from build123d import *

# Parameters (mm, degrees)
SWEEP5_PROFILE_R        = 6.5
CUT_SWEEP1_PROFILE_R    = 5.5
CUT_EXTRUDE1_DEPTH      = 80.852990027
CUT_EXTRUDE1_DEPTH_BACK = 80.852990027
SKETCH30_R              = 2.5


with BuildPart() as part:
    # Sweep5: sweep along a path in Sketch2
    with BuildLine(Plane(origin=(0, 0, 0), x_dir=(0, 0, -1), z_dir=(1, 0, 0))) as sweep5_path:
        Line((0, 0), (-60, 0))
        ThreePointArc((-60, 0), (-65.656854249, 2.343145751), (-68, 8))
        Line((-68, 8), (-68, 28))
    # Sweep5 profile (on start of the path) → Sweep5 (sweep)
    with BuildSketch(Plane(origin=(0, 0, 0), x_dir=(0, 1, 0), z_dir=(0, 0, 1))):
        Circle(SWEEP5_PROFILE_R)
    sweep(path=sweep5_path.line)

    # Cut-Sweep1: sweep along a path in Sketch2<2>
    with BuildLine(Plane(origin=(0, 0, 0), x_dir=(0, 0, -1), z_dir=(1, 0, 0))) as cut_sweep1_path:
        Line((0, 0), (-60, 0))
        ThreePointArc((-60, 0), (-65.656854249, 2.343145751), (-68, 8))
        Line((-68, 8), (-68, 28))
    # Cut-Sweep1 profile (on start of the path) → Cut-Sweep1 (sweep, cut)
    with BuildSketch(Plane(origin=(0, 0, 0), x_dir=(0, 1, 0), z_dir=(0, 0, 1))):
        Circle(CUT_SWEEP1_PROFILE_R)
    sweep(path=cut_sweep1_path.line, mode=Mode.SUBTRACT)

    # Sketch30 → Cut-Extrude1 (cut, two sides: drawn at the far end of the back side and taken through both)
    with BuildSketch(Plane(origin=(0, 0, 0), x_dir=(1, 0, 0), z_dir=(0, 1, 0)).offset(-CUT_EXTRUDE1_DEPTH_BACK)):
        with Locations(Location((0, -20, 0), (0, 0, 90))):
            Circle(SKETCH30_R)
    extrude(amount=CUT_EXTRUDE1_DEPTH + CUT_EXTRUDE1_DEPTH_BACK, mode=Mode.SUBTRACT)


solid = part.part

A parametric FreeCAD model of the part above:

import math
import FreeCAD as App
import Part
import Sketcher

V = App.Vector

doc = App.newDocument("Part")
body = doc.addObject("PartDesign::Body", "Body")

# Sketch on XY plane
sketch1 = doc.addObject("Sketcher::SketchObject", "Sketch")
body.addObject(sketch1)
sketch1.AttachmentSupport = (doc.XY_Plane, [""])
sketch1.MapMode = "FlatFace"
sketch1.addGeometry(Part.Circle(V(0, 0, 0), V(0, 0, 1), 6.5), False)
sketch1.addConstraint([
    Sketcher.Constraint("Coincident", 0, 3, -1, 1),
    Sketcher.Constraint("Diameter", 0, 13.0),
])

# Sketch on YZ plane
sketch2 = doc.addObject("Sketcher::SketchObject", "Sketch001")
body.addObject(sketch2)
sketch2.AttachmentSupport = (doc.YZ_Plane, [""])
sketch2.MapMode = "FlatFace"
sketch2.addGeometry([
    Part.LineSegment(V(0, 0, 0), V(0, 60, 0)),
    Part.ArcOfCircle(Part.Circle(V(8, 60, 0), V(0, 0, 1), 8), math.radians(90), math.radians(180)),
    Part.LineSegment(V(8, 68, 0), V(28, 68, 0)),
], False)
sketch2.addConstraint([
    Sketcher.Constraint("Tangent", 0, 2, 1, 2),
    Sketcher.Constraint("Tangent", 1, 1, 2, 1),
    Sketcher.Constraint("Vertical", 0),
    Sketcher.Constraint("Horizontal", 2),
    Sketcher.Constraint("Coincident", 0, 1, -1, 1),
    Sketcher.Constraint("Radius", 1, 8.0),
    Sketcher.Constraint("DistanceX", 2, 1, 2, 2, 20.0),
    Sketcher.Constraint("DistanceY", 0, 1, 0, 2, 60.0),
])
doc.recompute()

additivepipe = doc.addObject("PartDesign::AdditivePipe", "AdditivePipe")
body.addObject(additivepipe)
additivepipe.Profile = sketch1
additivepipe.Spine = (sketch2, ["Edge1", "Edge2", "Edge3"])

# Sketch on XY plane
sketch3 = doc.addObject("Sketcher::SketchObject", "Sketch002")
body.addObject(sketch3)
sketch3.AttachmentSupport = (doc.XY_Plane, [""])
sketch3.MapMode = "FlatFace"
sketch3.addGeometry(Part.Circle(V(0, 0, 0), V(0, 0, 1), 5.5), False)
sketch3.addConstraint([
    Sketcher.Constraint("Coincident", 0, 3, -1, 1),
    Sketcher.Constraint("Diameter", 0, 11.0),
])

# Sketch on YZ plane
sketch4 = doc.addObject("Sketcher::SketchObject", "Sketch003")
body.addObject(sketch4)
sketch4.AttachmentSupport = (doc.YZ_Plane, [""])
sketch4.MapMode = "FlatFace"
sketch4.addGeometry([
    Part.LineSegment(V(0, 0, 0), V(0, 60, 0)),
    Part.ArcOfCircle(Part.Circle(V(8, 60, 0), V(0, 0, 1), 8), math.radians(90), math.radians(180)),
    Part.LineSegment(V(8, 68, 0), V(28, 68, 0)),
], False)
sketch4.addConstraint([
    Sketcher.Constraint("Tangent", 0, 2, 1, 2),
    Sketcher.Constraint("Tangent", 1, 1, 2, 1),
    Sketcher.Constraint("Vertical", 0),
    Sketcher.Constraint("Horizontal", 2),
    Sketcher.Constraint("Coincident", 0, 1, -1, 1),
    Sketcher.Constraint("Radius", 1, 8.0),
    Sketcher.Constraint("DistanceX", 2, 1, 2, 2, 20.0),
    Sketcher.Constraint("DistanceY", 0, 1, 0, 2, 60.0),
])
doc.recompute()

subtractivepipe = doc.addObject("PartDesign::SubtractivePipe", "SubtractivePipe")
body.addObject(subtractivepipe)
subtractivepipe.Profile = sketch3
subtractivepipe.Spine = (sketch4, ["Edge1", "Edge2", "Edge3"])

# Sketch on XZ plane
sketch5 = doc.addObject("Sketcher::SketchObject", "Sketch004")
body.addObject(sketch5)
sketch5.AttachmentSupport = (doc.XZ_Plane, [""])
sketch5.MapMode = "FlatFace"
sketch5.addGeometry(Part.Circle(V(0, 20, 0), V(0, 0, 1), 2.5), False)
sketch5.addConstraint([
    Sketcher.Constraint("PointOnObject", 0, 3, -2),
    Sketcher.Constraint("Diameter", 0, 5.0),
    Sketcher.Constraint("DistanceY", -1, 1, 0, 3, 20.0),
])
pocket1 = doc.addObject("PartDesign::Pocket", "Pocket")
body.addObject(pocket1)
pocket1.Profile = sketch5
pocket1.Type = "ThroughAll"
pocket1.Midplane = True

doc.recompute()
